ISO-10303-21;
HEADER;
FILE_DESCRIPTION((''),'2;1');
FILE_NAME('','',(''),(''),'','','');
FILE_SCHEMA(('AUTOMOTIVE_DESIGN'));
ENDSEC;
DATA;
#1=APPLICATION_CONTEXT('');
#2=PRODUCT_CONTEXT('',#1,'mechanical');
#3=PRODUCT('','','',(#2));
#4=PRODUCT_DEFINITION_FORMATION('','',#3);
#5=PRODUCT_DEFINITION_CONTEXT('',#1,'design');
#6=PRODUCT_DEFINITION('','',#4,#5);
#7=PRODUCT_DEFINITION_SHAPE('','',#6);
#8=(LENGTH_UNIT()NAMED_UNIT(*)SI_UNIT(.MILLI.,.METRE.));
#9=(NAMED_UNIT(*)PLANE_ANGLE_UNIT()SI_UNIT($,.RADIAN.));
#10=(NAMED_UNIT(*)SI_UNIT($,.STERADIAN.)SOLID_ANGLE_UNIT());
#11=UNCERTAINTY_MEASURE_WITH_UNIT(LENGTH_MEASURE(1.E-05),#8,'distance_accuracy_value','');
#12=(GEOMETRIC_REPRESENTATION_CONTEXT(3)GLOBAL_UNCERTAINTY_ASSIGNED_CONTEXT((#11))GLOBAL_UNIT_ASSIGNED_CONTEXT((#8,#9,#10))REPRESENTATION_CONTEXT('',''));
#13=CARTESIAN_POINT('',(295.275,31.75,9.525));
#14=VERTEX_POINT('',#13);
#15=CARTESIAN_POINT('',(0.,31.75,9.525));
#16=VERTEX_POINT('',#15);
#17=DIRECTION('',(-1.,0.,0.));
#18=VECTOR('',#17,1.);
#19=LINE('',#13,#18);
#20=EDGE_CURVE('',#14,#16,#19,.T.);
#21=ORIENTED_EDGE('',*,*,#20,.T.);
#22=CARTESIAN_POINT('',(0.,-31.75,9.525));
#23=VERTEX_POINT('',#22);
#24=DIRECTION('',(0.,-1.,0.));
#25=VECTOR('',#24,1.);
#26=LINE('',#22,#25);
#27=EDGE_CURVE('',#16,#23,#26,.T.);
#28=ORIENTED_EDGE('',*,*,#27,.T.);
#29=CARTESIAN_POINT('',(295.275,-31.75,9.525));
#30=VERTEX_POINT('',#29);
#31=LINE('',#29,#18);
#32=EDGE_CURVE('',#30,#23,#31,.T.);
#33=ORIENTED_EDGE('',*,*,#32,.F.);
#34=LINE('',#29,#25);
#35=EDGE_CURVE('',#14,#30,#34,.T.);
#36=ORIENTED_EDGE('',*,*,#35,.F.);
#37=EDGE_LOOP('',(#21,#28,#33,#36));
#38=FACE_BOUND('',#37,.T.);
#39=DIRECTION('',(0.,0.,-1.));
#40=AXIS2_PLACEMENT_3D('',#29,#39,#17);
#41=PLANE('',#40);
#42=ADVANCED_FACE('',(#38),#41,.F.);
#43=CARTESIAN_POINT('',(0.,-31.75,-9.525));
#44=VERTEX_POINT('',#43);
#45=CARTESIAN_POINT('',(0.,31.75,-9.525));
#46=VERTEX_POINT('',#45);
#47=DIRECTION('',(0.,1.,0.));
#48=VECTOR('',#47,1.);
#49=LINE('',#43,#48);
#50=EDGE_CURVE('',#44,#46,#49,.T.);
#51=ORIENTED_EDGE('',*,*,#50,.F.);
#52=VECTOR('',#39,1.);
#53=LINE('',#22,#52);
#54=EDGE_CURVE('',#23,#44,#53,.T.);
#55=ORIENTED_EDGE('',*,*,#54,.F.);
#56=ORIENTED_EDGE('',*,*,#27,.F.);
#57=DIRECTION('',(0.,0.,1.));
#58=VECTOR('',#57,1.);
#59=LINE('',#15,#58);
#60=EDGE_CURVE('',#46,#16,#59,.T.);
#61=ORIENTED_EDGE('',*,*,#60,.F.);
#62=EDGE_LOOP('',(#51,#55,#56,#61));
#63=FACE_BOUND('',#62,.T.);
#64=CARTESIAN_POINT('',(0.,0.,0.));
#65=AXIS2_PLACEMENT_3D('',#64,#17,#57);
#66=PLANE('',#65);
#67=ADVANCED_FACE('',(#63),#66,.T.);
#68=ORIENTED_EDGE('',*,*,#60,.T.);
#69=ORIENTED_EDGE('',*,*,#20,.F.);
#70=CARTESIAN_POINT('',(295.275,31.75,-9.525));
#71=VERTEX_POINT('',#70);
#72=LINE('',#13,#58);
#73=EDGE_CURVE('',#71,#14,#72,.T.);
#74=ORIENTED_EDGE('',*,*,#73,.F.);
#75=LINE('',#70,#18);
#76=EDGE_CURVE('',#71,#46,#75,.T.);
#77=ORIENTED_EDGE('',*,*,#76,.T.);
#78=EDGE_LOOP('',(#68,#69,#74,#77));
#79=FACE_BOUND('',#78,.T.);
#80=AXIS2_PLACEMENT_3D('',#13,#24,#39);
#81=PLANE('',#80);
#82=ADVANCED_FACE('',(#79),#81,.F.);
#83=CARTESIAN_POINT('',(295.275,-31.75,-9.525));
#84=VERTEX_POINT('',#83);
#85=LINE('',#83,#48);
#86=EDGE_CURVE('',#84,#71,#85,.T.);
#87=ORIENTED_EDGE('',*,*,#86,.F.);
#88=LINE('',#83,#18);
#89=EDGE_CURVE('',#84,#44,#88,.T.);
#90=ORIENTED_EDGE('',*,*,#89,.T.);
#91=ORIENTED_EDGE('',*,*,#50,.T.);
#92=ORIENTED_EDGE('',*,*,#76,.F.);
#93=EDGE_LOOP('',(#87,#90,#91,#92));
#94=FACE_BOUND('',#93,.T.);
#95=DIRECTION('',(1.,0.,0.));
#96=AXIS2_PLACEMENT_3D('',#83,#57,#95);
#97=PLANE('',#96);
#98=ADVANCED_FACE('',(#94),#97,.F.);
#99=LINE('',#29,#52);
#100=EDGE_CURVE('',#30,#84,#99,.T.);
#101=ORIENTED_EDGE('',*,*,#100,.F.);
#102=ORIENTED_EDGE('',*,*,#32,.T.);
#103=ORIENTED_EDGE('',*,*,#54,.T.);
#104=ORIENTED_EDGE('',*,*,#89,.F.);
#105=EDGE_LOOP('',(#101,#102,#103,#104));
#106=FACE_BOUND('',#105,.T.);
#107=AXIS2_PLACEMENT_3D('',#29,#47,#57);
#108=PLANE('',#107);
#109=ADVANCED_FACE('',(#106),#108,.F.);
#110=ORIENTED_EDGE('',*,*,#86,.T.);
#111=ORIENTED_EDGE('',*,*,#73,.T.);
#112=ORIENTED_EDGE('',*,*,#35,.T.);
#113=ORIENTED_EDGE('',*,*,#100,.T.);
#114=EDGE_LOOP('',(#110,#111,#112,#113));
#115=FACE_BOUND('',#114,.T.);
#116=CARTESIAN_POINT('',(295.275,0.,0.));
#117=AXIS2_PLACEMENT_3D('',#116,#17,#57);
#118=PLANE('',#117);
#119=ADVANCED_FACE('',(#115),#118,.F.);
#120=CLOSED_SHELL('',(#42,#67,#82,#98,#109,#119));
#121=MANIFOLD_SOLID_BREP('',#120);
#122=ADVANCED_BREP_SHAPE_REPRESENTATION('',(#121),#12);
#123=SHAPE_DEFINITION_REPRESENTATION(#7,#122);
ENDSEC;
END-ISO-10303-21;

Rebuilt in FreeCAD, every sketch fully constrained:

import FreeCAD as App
import Part
import Sketcher
from FreeCAD import Vector
Q = App.Units.Quantity

doc = App.newDocument("Part")
body = doc.addObject("PartDesign::Body", "Body")

sketch1 = body.newObject("Sketcher::SketchObject", "Sketch")
sketch1.AttachmentSupport = (doc.getObject("YZ_Plane"), [""])
sketch1.MapMode = "FlatFace"
sketch1.addGeometry([
    Part.LineSegment(Vector(31.75, 9.525, 0), Vector(-31.75, 9.525, 0)),
    Part.LineSegment(Vector(-31.75, 9.525, 0), Vector(-31.75, -9.525, 0)),
    Part.LineSegment(Vector(-31.75, -9.525, 0), Vector(31.75, -9.525, 0)),
    Part.LineSegment(Vector(31.75, -9.525, 0), Vector(31.75, 9.525, 0)),
], False)
sketch1.addConstraint([
    Sketcher.Constraint("Coincident", 0, 2, 1, 1),
    Sketcher.Constraint("Coincident", 1, 2, 2, 1),
    Sketcher.Constraint("Coincident", 2, 2, 3, 1),
    Sketcher.Constraint("Coincident", 3, 2, 0, 1),
    Sketcher.Constraint("Horizontal", 0),
    Sketcher.Constraint("Vertical", 1),
    Sketcher.Constraint("Horizontal", 2),
    Sketcher.Constraint("Vertical", 3),
    Sketcher.Constraint("Symmetric", 0, 2, 2, 2, -1, 1),
    Sketcher.Constraint("DistanceX", 0, 2, 0, 1, Q("2.5 in")),
    Sketcher.Constraint("DistanceY", 1, 2, 1, 1, Q("0.75 in")),
])
pad1 = body.newObject("PartDesign::Pad", "Pad")
pad1.Profile = sketch1
pad1.Length = Q("11.625 in")

doc.recompute()
